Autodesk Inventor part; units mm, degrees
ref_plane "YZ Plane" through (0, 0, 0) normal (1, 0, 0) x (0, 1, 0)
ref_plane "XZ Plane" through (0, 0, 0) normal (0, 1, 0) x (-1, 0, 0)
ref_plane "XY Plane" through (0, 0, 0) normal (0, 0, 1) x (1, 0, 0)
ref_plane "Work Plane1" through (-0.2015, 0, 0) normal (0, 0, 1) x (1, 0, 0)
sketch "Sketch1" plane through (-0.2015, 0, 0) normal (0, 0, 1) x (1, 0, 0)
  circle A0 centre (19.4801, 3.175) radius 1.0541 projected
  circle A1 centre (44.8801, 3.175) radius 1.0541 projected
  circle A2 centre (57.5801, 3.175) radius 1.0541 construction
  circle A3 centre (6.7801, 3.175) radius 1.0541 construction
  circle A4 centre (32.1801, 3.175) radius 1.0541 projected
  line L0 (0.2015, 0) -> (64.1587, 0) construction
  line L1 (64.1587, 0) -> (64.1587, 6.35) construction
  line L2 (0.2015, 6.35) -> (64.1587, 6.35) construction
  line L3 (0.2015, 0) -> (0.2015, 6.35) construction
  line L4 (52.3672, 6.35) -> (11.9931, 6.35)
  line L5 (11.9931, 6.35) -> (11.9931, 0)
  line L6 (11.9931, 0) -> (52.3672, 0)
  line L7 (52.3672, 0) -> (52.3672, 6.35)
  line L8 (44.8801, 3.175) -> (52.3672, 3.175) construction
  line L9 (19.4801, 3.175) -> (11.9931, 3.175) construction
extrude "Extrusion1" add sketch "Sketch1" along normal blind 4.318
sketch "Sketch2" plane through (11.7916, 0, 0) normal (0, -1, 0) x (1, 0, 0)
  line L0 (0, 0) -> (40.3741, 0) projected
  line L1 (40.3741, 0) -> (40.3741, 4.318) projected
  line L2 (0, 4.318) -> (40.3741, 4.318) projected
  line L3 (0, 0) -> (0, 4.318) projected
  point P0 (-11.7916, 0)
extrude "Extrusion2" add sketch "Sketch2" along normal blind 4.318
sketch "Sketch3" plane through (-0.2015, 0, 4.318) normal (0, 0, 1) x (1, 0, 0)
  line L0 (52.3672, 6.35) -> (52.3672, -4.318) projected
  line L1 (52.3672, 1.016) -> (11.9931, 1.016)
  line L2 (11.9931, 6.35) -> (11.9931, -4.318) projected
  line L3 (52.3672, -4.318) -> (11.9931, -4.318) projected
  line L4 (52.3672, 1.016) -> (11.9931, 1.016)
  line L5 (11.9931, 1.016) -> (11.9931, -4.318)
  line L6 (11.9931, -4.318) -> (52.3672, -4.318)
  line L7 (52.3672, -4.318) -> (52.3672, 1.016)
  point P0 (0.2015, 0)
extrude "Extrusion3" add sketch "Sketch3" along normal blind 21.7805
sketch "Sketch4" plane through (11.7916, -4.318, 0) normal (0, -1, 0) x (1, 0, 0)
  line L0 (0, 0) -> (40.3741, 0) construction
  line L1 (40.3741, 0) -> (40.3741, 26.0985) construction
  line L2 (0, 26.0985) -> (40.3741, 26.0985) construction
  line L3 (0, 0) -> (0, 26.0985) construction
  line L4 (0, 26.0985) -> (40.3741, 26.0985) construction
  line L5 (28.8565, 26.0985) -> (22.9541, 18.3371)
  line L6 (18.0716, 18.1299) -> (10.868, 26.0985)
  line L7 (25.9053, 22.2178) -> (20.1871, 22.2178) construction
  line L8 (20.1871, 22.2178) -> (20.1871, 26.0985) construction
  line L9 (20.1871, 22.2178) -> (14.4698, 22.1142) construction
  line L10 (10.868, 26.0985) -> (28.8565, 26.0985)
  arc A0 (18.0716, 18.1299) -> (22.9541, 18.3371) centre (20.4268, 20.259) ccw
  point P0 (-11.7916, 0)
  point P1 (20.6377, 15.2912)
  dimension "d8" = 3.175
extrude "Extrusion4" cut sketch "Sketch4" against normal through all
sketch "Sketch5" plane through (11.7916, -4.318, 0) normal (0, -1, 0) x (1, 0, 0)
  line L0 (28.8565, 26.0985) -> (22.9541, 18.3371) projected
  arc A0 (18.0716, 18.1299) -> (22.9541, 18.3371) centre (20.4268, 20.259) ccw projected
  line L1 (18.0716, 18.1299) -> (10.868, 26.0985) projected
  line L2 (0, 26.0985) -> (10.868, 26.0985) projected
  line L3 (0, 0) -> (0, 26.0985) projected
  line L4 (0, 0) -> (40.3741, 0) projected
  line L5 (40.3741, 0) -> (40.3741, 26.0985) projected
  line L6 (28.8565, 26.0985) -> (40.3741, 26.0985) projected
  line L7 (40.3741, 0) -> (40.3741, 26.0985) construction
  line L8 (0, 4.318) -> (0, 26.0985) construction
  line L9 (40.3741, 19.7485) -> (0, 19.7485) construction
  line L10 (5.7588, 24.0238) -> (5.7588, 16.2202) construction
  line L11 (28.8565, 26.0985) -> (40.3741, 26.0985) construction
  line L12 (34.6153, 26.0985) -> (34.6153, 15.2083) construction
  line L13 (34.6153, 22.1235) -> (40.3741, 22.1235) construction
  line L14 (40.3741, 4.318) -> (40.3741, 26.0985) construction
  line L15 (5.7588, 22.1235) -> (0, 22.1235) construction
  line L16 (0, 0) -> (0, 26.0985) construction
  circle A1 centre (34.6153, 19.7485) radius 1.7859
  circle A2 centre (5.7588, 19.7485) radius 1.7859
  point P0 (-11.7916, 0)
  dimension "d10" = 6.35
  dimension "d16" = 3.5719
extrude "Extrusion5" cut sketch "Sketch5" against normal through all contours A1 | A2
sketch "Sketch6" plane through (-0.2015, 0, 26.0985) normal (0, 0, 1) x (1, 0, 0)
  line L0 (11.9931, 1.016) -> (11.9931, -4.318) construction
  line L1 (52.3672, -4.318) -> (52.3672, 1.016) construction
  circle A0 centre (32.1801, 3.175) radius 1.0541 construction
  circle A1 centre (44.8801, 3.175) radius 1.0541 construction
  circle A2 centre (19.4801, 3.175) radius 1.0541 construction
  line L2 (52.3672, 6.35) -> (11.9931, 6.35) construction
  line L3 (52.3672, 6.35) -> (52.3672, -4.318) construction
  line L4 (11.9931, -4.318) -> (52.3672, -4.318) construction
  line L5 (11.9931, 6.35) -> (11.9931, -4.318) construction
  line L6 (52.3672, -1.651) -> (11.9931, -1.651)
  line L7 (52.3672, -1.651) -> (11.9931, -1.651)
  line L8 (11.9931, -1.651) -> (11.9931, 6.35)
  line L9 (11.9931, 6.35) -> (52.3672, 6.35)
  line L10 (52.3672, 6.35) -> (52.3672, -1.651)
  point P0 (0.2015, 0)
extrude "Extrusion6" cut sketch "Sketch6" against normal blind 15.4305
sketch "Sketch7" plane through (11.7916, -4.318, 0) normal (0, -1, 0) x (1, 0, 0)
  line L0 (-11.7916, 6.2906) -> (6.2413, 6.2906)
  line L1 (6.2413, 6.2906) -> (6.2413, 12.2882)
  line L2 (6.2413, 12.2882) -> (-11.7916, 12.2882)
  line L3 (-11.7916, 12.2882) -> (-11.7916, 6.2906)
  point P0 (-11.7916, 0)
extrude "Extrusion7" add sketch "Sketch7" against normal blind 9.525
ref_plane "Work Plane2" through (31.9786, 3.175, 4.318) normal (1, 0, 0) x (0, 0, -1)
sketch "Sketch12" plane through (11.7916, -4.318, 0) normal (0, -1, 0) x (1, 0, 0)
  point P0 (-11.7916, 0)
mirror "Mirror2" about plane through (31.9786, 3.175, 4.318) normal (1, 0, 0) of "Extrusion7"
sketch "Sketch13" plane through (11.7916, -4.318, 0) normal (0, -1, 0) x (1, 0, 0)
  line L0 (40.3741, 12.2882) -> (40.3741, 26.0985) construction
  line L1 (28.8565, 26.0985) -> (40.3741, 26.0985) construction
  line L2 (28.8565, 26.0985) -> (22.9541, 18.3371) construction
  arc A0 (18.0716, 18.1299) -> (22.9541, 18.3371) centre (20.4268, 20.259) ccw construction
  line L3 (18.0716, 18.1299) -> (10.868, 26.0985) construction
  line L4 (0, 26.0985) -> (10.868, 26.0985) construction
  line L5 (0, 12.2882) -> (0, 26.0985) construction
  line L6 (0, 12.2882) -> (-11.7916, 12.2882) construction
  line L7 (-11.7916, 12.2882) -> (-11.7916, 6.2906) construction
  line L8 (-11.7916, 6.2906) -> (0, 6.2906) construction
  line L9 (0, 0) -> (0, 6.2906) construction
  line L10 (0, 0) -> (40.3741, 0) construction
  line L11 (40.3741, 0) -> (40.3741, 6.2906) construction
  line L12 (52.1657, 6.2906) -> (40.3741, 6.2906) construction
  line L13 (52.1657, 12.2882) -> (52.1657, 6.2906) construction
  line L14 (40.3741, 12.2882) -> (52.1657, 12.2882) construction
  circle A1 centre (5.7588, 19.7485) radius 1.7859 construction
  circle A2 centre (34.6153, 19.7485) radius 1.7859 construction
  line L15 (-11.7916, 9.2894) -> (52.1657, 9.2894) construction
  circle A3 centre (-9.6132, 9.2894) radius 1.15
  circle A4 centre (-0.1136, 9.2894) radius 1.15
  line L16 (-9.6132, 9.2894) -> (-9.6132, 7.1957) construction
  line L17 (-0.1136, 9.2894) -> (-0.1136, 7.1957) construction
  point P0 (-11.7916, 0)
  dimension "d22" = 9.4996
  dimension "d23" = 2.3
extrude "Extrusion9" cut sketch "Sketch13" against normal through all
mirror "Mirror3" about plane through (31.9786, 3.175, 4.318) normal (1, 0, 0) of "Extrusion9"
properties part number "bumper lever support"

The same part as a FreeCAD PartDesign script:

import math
import FreeCAD as App
import Part
import Sketcher
Q = App.Units.Quantity

doc = App.newDocument("Part")
params = doc.addObject("Spreadsheet::Sheet", "Params")
for row, (alias, value) in enumerate([
    ("sketch1_diameter", "0.083 in"),
    ("sketch1_height", "0.25 in"),
    ("pad1_length", "0.17 in"),
    ("sketch2_height", "0.17 in"),
    ("pad2_length", "0.17 in"),
    ("sketch3_height", "0.21 in"),
    ("pad3_length", "0.8575 in"),
    ("sketch4_radius", "0.125 in"),
    ("sketch5_diameter", "0.140622 in"),
    ("sketch6_height", "0.315 in"),
    ("pocket3_length", "0.6075 in"),
    ("pad4_length", "0.375 in"),
], start=1):
    params.set(f"A{row}", alias)
    params.set(f"B{row}", "=" + value)
    params.setAlias(f"B{row}", alias)

body = doc.addObject("PartDesign::Body", "Body")

# Sketch on XY plane
sketch1 = body.newObject("Sketcher::SketchObject", "Sketch")
sketch1.AttachmentSupport = (doc.getObject("XY_Plane"), [""])
sketch1.MapMode = "FlatFace"
sketch1.addGeometry([
    Part.LineSegment(App.Vector(52.2, 0, 0), App.Vector(52.2, 6.3, 0)),  # 0
    Part.LineSegment(App.Vector(52.2, 6.3, 0), App.Vector(11.8, 6.3, 0)),  # 1
    Part.LineSegment(App.Vector(11.8, 6.3, 0), App.Vector(11.8, 0, 0)),  # 2
    Part.LineSegment(App.Vector(11.8, 0, 0), App.Vector(52.2, 0, 0)),  # 3
    Part.Circle(App.Vector(19.3, 3.2, 0), App.Vector(0, 0, 1), 1.1),  # 4
    Part.Circle(App.Vector(32, 3.2, 0), App.Vector(0, 0, 1), 1.1),  # 5
    Part.Circle(App.Vector(44.7, 3.2, 0), App.Vector(0, 0, 1), 1.1),  # 6
], False)
sketch1.addConstraint([
    Sketcher.Constraint("Coincident", 0, 2, 1, 1),
    Sketcher.Constraint("Coincident", 1, 2, 2, 1),
    Sketcher.Constraint("Coincident", 2, 2, 3, 1),
    Sketcher.Constraint("Coincident", 3, 2, 0, 1),
    Sketcher.Constraint("Vertical", 0),
    Sketcher.Constraint("Horizontal", 1),
    Sketcher.Constraint("Vertical", 2),
    Sketcher.Constraint("Horizontal", 3),
    Sketcher.Constraint("Equal", 4, 5),
    Sketcher.Constraint("Equal", 5, 6),
    Sketcher.Constraint("PointOnObject", 2, 2, -1),
    Sketcher.Constraint("Horizontal", 4, 3, 5, 3),
    Sketcher.Constraint("Horizontal", 5, 3, 6, 3),
    Sketcher.Constraint("Diameter", 4, Q("0.083 in")),
    Sketcher.Constraint("DistanceX", 4, 3, 6, 3, Q("1 in")),
    Sketcher.Constraint("DistanceY", 0, 1, 0, 2, Q("0.25 in")),
    Sketcher.Constraint("DistanceX", 4, 3, 5, 3, Q("0.5 in")),
    Sketcher.Constraint("DistanceX", -1, 1, 4, 3, Q("0.759 in")),
    Sketcher.Constraint("DistanceY", -1, 1, 4, 3, Q("0.125 in")),
    Sketcher.Constraint("DistanceX", 1, 2, 1, 1, 40.374),
    Sketcher.Constraint("DistanceX", -1, 1, 0, 2, 52.1657),
])
sketch1.setExpression("Constraints[13]", "Params.sketch1_diameter")
sketch1.setExpression("Constraints[15]", "Params.sketch1_height")
pad1 = body.newObject("PartDesign::Pad", "Pad")
pad1.Profile = sketch1
pad1.setExpression("Length", "Params.pad1_length")

# Sketch on XZ plane
sketch2 = body.newObject("Sketcher::SketchObject", "Sketch001")
sketch2.AttachmentSupport = (doc.getObject("XZ_Plane"), [""])
sketch2.MapMode = "FlatFace"
sketch2.addGeometry([
    Part.LineSegment(App.Vector(11.8, 4.3, 0), App.Vector(11.8, 0, 0)),
    Part.LineSegment(App.Vector(11.8, 0, 0), App.Vector(52.2, 0, 0)),
    Part.LineSegment(App.Vector(52.2, 0, 0), App.Vector(52.2, 4.3, 0)),
    Part.LineSegment(App.Vector(52.2, 4.3, 0), App.Vector(11.8, 4.3, 0)),
], False)
sketch2.addConstraint([
    Sketcher.Constraint("Coincident", 0, 2, 1, 1),
    Sketcher.Constraint("Coincident", 1, 2, 2, 1),
    Sketcher.Constraint("Coincident", 2, 2, 3, 1),
    Sketcher.Constraint("Coincident", 3, 2, 0, 1),
    Sketcher.Constraint("Vertical", 0),
    Sketcher.Constraint("Horizontal", 1),
    Sketcher.Constraint("Vertical", 2),
    Sketcher.Constraint("Horizontal", 3),
    Sketcher.Constraint("PointOnObject", 0, 2, -1),
    Sketcher.Constraint("DistanceY", 0, 2, 0, 1, Q("0.17 in")),
    Sketcher.Constraint("DistanceX", 1, 1, 1, 2, 40.374),
    Sketcher.Constraint("DistanceX", -1, 1, 0, 2, 11.7916),
])
sketch2.setExpression("Constraints[9]", "Params.sketch2_height")
pad2 = body.newObject("PartDesign::Pad", "Pad001")
pad2.Profile = sketch2
pad2.setExpression("Length", "Params.pad2_length")

# Sketch on XY plane
sketch3 = body.newObject("Sketcher::SketchObject", "Sketch002")
sketch3.AttachmentSupport = (doc.getObject("XY_Plane"), [""])
sketch3.MapMode = "FlatFace"
sketch3.AttachmentOffset = App.Placement(App.Vector(0, 0, 0.17 * 25.4), App.Rotation())
sketch3.addGeometry([
    Part.LineSegment(App.Vector(52, -4, 0), App.Vector(52, 1, 0)),
    Part.LineSegment(App.Vector(52, 1, 0), App.Vector(12, 1, 0)),
    Part.LineSegment(App.Vector(12, 1, 0), App.Vector(12, -4, 0)),
    Part.LineSegment(App.Vector(12, -4, 0), App.Vector(52, -4, 0)),
], False)
sketch3.addConstraint([
    Sketcher.Constraint("Coincident", 0, 2, 1, 1),
    Sketcher.Constraint("Coincident", 1, 2, 2, 1),
    Sketcher.Constraint("Coincident", 2, 2, 3, 1),
    Sketcher.Constraint("Coincident", 3, 2, 0, 1),
    Sketcher.Constraint("Vertical", 0),
    Sketcher.Constraint("Horizontal", 1),
    Sketcher.Constraint("Vertical", 2),
    Sketcher.Constraint("Horizontal", 3),
    Sketcher.Constraint("DistanceY", 0, 1, 0, 2, Q("0.21 in")),
    Sketcher.Constraint("DistanceY", -1, 1, 0, 2, Q("0.04 in")),
    Sketcher.Constraint("DistanceX", 1, 2, 1, 1, 40.374),
    Sketcher.Constraint("DistanceX", -1, 1, 0, 2, 52.1657),
])
sketch3.setExpression("Constraints[8]", "Params.sketch3_height")
pad3 = body.newObject("PartDesign::Pad", "Pad002")
pad3.Profile = sketch3
pad3.setExpression("Length", "Params.pad3_length")

# Sketch on XZ plane
sketch4 = body.newObject("Sketcher::SketchObject", "Sketch003")
sketch4.AttachmentSupport = (doc.getObject("XZ_Plane"), [""])
sketch4.MapMode = "FlatFace"
sketch4.AttachmentOffset = App.Placement(App.Vector(0, 0, 0.17 * 25.4), App.Rotation())
sketch4.addGeometry([
    Part.LineSegment(App.Vector(34.7, 18.3, 0), App.Vector(40.6, 26.1, 0)),
    Part.LineSegment(App.Vector(40.6, 26.1, 0), App.Vector(22.7, 26.1, 0)),
    Part.LineSegment(App.Vector(22.7, 26.1, 0), App.Vector(29.9, 18.1, 0)),
    Part.ArcOfCircle(Part.Circle(App.Vector(32.2, 20.3, 0), App.Vector(0, 0, 1), 3.2), math.radians(-138), math.radians(-37)),
], False)
sketch4.addConstraint([
    Sketcher.Constraint("Coincident", 0, 2, 1, 1),
    Sketcher.Constraint("Coincident", 1, 2, 2, 1),
    Sketcher.Constraint("Tangent", 2, 2, 3, 1),
    Sketcher.Constraint("Tangent", 3, 2, 0, 1),
    Sketcher.Constraint("Horizontal", 1),
    Sketcher.Constraint("Radius", 3, Q("0.125 in")),
    Sketcher.Constraint("DistanceX", 1, 2, 1, 1, Q("0.7082 in")),
    Sketcher.Constraint("Distance", 0, Q("0.3839 in")),
    Sketcher.Constraint("DistanceY", -1, 1, 3, 3, Q("0.7976 in")),
    Sketcher.Constraint("DistanceY", -1, 1, 0, 2, Q("1.0275 in")),
    Sketcher.Constraint("DistanceX", -1, 1, 1, 2, Q("0.8921 in")),
])
sketch4.setExpression("Constraints[5]", "Params.sketch4_radius")
pocket1 = body.newObject("PartDesign::Pocket", "Pocket")
pocket1.Profile = sketch4
pocket1.Type = "ThroughAll"

# Sketch on XZ plane
sketch5 = body.newObject("Sketcher::SketchObject", "Sketch004")
sketch5.AttachmentSupport = (doc.getObject("XZ_Plane"), [""])
sketch5.MapMode = "FlatFace"
sketch5.AttachmentOffset = App.Placement(App.Vector(0, 0, 0.17 * 25.4), App.Rotation())
sketch5.addGeometry([
    Part.Circle(App.Vector(46.4, 19.7, 0), App.Vector(0, 0, 1), 1.8),
    Part.Circle(App.Vector(17.6, 19.7, 0), App.Vector(0, 0, 1), 1.8),
], False)
sketch5.addConstraint([
    Sketcher.Constraint("Equal", 0, 1),
    Sketcher.Constraint("Horizontal", 0, 3, 1, 3),
    Sketcher.Constraint("Diameter", 0, Q("0.140622 in")),
    Sketcher.Constraint("DistanceY", -1, 1, 0, 3, Q("0.7775 in")),
    Sketcher.Constraint("DistanceX", -1, 1, 0, 3, 46.407),
    Sketcher.Constraint("DistanceX", -1, 1, 1, 3, 17.5504),
])
sketch5.setExpression("Constraints[2]", "Params.sketch5_diameter")
pocket2 = body.newObject("PartDesign::Pocket", "Pocket001")
pocket2.Profile = sketch5
pocket2.Type = "ThroughAll"

# Sketch on XY plane
sketch6 = body.newObject("Sketcher::SketchObject", "Sketch005")
sketch6.AttachmentSupport = (doc.getObject("XY_Plane"), [""])
sketch6.MapMode = "FlatFace"
sketch6.AttachmentOffset = App.Placement(App.Vector(0, 0, 1.0275 * 25.4), App.Rotation())
sketch6.addGeometry([
    Part.LineSegment(App.Vector(12, -2, 0), App.Vector(52, -2, 0)),
    Part.LineSegment(App.Vector(52, -2, 0), App.Vector(52, 6, 0)),
    Part.LineSegment(App.Vector(52, 6, 0), App.Vector(12, 6, 0)),
    Part.LineSegment(App.Vector(12, 6, 0), App.Vector(12, -2, 0)),
], False)
sketch6.addConstraint([
    Sketcher.Constraint("Coincident", 0, 2, 1, 1),
    Sketcher.Constraint("Coincident", 1, 2, 2, 1),
    Sketcher.Constraint("Coincident", 2, 2, 3, 1),
    Sketcher.Constraint("Coincident", 3, 2, 0, 1),
    Sketcher.Constraint("Horizontal", 0),
    Sketcher.Constraint("Vertical", 1),
    Sketcher.Constraint("Horizontal", 2),
    Sketcher.Constraint("Vertical", 3),
    Sketcher.Constraint("DistanceY", 1, 1, 1, 2, Q("0.315 in")),
    Sketcher.Constraint("DistanceY", -1, 1, 1, 2, Q("0.25 in")),
    Sketcher.Constraint("DistanceX", 0, 1, 0, 2, 40.374),
    Sketcher.Constraint("DistanceX", -1, 1, 0, 2, 52.1657),
])
sketch6.setExpression("Constraints[8]", "Params.sketch6_height")
pocket3 = body.newObject("PartDesign::Pocket", "Pocket002")
pocket3.Profile = sketch6
pocket3.setExpression("Length", "Params.pocket3_length")

# Sketch on XZ plane
sketch7 = body.newObject("Sketcher::SketchObject", "Sketch006")
sketch7.AttachmentSupport = (doc.getObject("XZ_Plane"), [""])
sketch7.MapMode = "FlatFace"
sketch7.AttachmentOffset = App.Placement(App.Vector(0, 0, 0.17 * 25.4), App.Rotation())
sketch7.addGeometry([
    Part.LineSegment(App.Vector(0, 12, 0), App.Vector(0, 6, 0)),
    Part.LineSegment(App.Vector(0, 6, 0), App.Vector(18, 6, 0)),
    Part.LineSegment(App.Vector(18, 6, 0), App.Vector(18, 12, 0)),
    Part.LineSegment(App.Vector(18, 12, 0), App.Vector(0, 12, 0)),
], False)
sketch7.addConstraint([
    Sketcher.Constraint("Coincident", 0, 2, 1, 1),
    Sketcher.Constraint("Coincident", 1, 2, 2, 1),
    Sketcher.Constraint("Coincident", 2, 2, 3, 1),
    Sketcher.Constraint("Coincident", 3, 2, 0, 1),
    Sketcher.Constraint("Vertical", 0),
    Sketcher.Constraint("Horizontal", 1),
    Sketcher.Constraint("Vertical", 2),
    Sketcher.Constraint("Horizontal", 3),
    Sketcher.Constraint("PointOnObject", 0, 2, -2),
    Sketcher.Constraint("DistanceX", 1, 1, 1, 2, 18.033),
    Sketcher.Constraint("DistanceY", 0, 2, 0, 1, 5.9976),
    Sketcher.Constraint("DistanceY", -1, 1, 0, 2, 6.2906),
])
pad4 = body.newObject("PartDesign::Pad", "Pad003")
pad4.Profile = sketch7
pad4.setExpression("Length", "Params.pad4_length")
pad4.Reversed = True
doc.recompute()

datumplane = body.newObject("PartDesign::Plane", "DatumPlane")
datumplane.AttachmentSupport = (doc.getObject("YZ_Plane"), [""])
datumplane.MapMode = "FlatFace"
datumplane.AttachmentOffset = App.Placement(App.Vector(0, 0, 1.259 * 25.4), App.Rotation())
mirrored = body.newObject("PartDesign::Mirrored", "Mirrored")
mirrored.Originals = [pad4]
mirrored.MirrorPlane = (datumplane, [""])
body.Tip = mirrored

# Sketch on XZ plane
sketch8 = body.newObject("Sketcher::SketchObject", "Sketch007")
sketch8.AttachmentSupport = (doc.getObject("XZ_Plane"), [""])
sketch8.MapMode = "FlatFace"
sketch8.AttachmentOffset = App.Placement(App.Vector(0, 0, 0.17 * 25.4), App.Rotation())
sketch8.addGeometry([
    Part.Circle(App.Vector(2.2, 9.3, 0), App.Vector(0, 0, 1), 1.1),
    Part.Circle(App.Vector(11.7, 9.3, 0), App.Vector(0, 0, 1), 1.1),
], False)
sketch8.addConstraint([
    Sketcher.Constraint("Equal", 0, 1),
    Sketcher.Constraint("Horizontal", 0, 3, 1, 3),
    Sketcher.Constraint("Diameter", 0, 2.3),
    Sketcher.Constraint("DistanceX", 0, 3, 1, 3, Q("0.374 in")),
    Sketcher.Constraint("DistanceX", -1, 1, 0, 3, 2.1784),
    Sketcher.Constraint("DistanceY", -1, 1, 0, 3, 9.2894),
])
pocket4 = body.newObject("PartDesign::Pocket", "Pocket003")
pocket4.Profile = sketch8
pocket4.Type = "ThroughAll"
doc.recompute()

datumplane2 = body.newObject("PartDesign::Plane", "DatumPlane001")
datumplane2.AttachmentSupport = (doc.getObject("YZ_Plane"), [""])
datumplane2.MapMode = "FlatFace"
datumplane2.AttachmentOffset = App.Placement(App.Vector(0, 0, 1.259 * 25.4), App.Rotation())
mirrored2 = body.newObject("PartDesign::Mirrored", "Mirrored001")
mirrored2.Originals = [pocket4]
mirrored2.MirrorPlane = (datumplane2, [""])
body.Tip = mirrored2

doc.recompute()
